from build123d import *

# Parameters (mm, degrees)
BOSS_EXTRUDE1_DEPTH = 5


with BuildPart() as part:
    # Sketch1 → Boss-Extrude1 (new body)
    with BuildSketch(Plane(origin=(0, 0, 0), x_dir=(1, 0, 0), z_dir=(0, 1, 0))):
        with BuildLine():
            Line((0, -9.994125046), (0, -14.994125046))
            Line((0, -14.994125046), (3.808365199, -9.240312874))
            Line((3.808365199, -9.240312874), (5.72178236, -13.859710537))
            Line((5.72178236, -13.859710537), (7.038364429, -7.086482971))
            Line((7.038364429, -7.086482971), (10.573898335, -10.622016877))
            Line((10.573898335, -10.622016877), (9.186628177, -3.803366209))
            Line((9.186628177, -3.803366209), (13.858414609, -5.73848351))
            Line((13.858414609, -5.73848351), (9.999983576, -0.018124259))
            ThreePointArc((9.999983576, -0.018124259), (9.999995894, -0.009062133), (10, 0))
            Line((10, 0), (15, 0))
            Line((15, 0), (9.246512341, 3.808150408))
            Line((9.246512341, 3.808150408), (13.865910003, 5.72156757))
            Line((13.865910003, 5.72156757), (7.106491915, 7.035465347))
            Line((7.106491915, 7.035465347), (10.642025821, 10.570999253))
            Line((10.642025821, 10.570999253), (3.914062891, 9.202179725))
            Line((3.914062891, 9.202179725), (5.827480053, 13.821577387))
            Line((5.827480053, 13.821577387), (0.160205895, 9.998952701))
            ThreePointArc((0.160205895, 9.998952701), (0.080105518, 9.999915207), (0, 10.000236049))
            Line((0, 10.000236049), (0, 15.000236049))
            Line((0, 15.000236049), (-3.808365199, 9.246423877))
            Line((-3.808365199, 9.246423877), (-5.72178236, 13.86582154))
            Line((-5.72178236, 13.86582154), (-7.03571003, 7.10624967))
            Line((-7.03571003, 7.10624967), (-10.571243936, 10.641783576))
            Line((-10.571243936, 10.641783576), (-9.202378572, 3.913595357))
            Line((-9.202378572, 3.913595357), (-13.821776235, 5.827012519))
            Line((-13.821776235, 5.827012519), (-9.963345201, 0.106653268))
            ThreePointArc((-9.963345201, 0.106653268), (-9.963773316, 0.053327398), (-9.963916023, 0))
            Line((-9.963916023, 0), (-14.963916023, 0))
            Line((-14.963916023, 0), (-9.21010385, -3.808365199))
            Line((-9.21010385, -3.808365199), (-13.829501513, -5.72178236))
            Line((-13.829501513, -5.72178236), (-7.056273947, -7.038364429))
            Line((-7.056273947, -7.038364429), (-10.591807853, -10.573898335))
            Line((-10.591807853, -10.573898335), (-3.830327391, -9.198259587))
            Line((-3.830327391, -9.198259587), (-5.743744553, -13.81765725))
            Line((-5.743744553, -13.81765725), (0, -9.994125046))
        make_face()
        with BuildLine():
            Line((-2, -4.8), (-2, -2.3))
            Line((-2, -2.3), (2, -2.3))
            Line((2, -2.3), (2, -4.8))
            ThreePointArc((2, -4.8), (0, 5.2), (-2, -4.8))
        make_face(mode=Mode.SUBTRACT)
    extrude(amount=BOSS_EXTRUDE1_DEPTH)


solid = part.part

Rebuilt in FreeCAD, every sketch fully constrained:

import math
import FreeCAD as App
import Part
import Sketcher
from FreeCAD import Vector
Q = App.Units.Quantity

doc = App.newDocument("Part")
params = doc.addObject("Spreadsheet::Sheet", "Params")
for row, (alias, value) in enumerate([
    ("sketch1_radius", "5.2 mm"),
    ("sketch1_width", "5 mm"),
    ("sketch1_width2", "4 mm"),
    ("sketch1_length", "5 mm"),
    ("sketch1_height", "2.5 mm"),
    ("pad1_length", "5 mm"),
], start=1):
    params.set(f"A{row}", alias)
    params.set(f"B{row}", "=" + value)
    params.setAlias(f"B{row}", alias)

body = doc.addObject("PartDesign::Body", "Body")

# Sketch on XZ plane
sketch1 = doc.addObject("Sketcher::SketchObject", "Sketch")
body.addObject(sketch1)
sketch1.AttachmentSupport = (doc.XZ_Plane, [""])
sketch1.MapMode = "FlatFace"
sketch1.addGeometry(Part.LineSegment(Vector(0, 9.994, 0), Vector(0, 14.994, 0)), False)
sketch1.addGeometry(Part.LineSegment(Vector(0, 14.994, 0), Vector(3.808, 9.24, 0)), False)
sketch1.addGeometry(Part.LineSegment(Vector(3.808, 9.24, 0), Vector(5.722, 13.86, 0)), False)
sketch1.addGeometry(Part.LineSegment(Vector(5.722, 13.86, 0), Vector(7.038, 7.086, 0)), False)
sketch1.addGeometry(Part.LineSegment(Vector(7.038, 7.086, 0), Vector(10.574, 10.622, 0)), False)
sketch1.addGeometry(Part.LineSegment(Vector(10.574, 10.622, 0), Vector(9.187, 3.803, 0)), False)
sketch1.addGeometry(Part.LineSegment(Vector(9.187, 3.803, 0), Vector(13.858, 5.738, 0)), False)
sketch1.addGeometry(Part.LineSegment(Vector(13.858, 5.738, 0), Vector(10, 0.018, 0)), False)
sketch1.addGeometry(Part.ArcOfCircle(Part.Circle(Vector(0, 0, 0), Vector(0, 0, 1), 10), math.radians(0), math.radians(0.1)), False)
sketch1.addGeometry(Part.LineSegment(Vector(10, 0, 0), Vector(15, 0, 0)), False)
sketch1.addGeometry(Part.LineSegment(Vector(15, 0, 0), Vector(9.247, -3.808, 0)), False)
sketch1.addGeometry(Part.LineSegment(Vector(9.247, -3.808, 0), Vector(13.866, -5.722, 0)), False)
sketch1.addGeometry(Part.LineSegment(Vector(13.866, -5.722, 0), Vector(7.106, -7.035, 0)), False)
sketch1.addGeometry(Part.LineSegment(Vector(7.106, -7.035, 0), Vector(10.642, -10.571, 0)), False)
sketch1.addGeometry(Part.LineSegment(Vector(10.642, -10.571, 0), Vector(3.914, -9.202, 0)), False)
sketch1.addGeometry(Part.LineSegment(Vector(3.914, -9.202, 0), Vector(5.827, -13.822, 0)), False)
sketch1.addGeometry(Part.LineSegment(Vector(5.827, -13.822, 0), Vector(0.16, -9.999, 0)), False)
sketch1.addGeometry(Part.ArcOfCircle(Part.Circle(Vector(0, 0, 0), Vector(0, 0, 1), 10), math.radians(-90), math.radians(-89.08)), False)
sketch1.addGeometry(Part.LineSegment(Vector(0, -10, 0), Vector(0, -15, 0)), False)
sketch1.addGeometry(Part.LineSegment(Vector(0, -15, 0), Vector(-3.808, -9.246, 0)), False)
sketch1.addGeometry(Part.LineSegment(Vector(-3.808, -9.246, 0), Vector(-5.722, -13.866, 0)), False)
sketch1.addGeometry(Part.LineSegment(Vector(-5.722, -13.866, 0), Vector(-7.036, -7.106, 0)), False)
sketch1.addGeometry(Part.LineSegment(Vector(-7.036, -7.106, 0), Vector(-10.571, -10.642, 0)), False)
sketch1.addGeometry(Part.LineSegment(Vector(-10.571, -10.642, 0), Vector(-9.202, -3.914, 0)), False)
sketch1.addGeometry(Part.LineSegment(Vector(-9.202, -3.914, 0), Vector(-13.822, -5.827, 0)), False)
sketch1.addGeometry(Part.LineSegment(Vector(-13.822, -5.827, 0), Vector(-9.963, -0.107, 0)), False)
sketch1.addGeometry(Part.ArcOfCircle(Part.Circle(Vector(0, 0, 0), Vector(0, 0, 1), 9.964), math.radians(-180), math.radians(-179.39)), False)
sketch1.addGeometry(Part.LineSegment(Vector(-9.964, 0, 0), Vector(-14.964, 0, 0)), False)
sketch1.addGeometry(Part.LineSegment(Vector(-14.964, 0, 0), Vector(-9.21, 3.808, 0)), False)
sketch1.addGeometry(Part.LineSegment(Vector(-9.21, 3.808, 0), Vector(-13.83, 5.722, 0)), False)
sketch1.addGeometry(Part.LineSegment(Vector(-13.83, 5.722, 0), Vector(-7.056, 7.038, 0)), False)
sketch1.addGeometry(Part.LineSegment(Vector(-7.056, 7.038, 0), Vector(-10.592, 10.574, 0)), False)
sketch1.addGeometry(Part.LineSegment(Vector(-10.592, 10.574, 0), Vector(-3.83, 9.198, 0)), False)
sketch1.addGeometry(Part.LineSegment(Vector(-3.83, 9.198, 0), Vector(-5.744, 13.818, 0)), False)
sketch1.addGeometry(Part.LineSegment(Vector(-5.744, 13.818, 0), Vector(0, 9.994, 0)), False)
sketch1.addGeometry(Part.LineSegment(Vector(-2, 2.3, 0), Vector(-2, 4.8, 0)), False)
sketch1.addGeometry(Part.ArcOfCircle(Part.Circle(Vector(0, 0, 0), Vector(0, 0, 1), 5.2), math.radians(113), math.radians(427)), False)
sketch1.addGeometry(Part.LineSegment(Vector(2, 4.8, 0), Vector(2, 2.3, 0)), False)
sketch1.addGeometry(Part.LineSegment(Vector(2, 2.3, 0), Vector(-2, 2.3, 0)), False)
sketch1.addConstraint(Sketcher.Constraint("Coincident", 0, 2, 1, 1))
sketch1.addConstraint(Sketcher.Constraint("Coincident", 1, 2, 2, 1))
sketch1.addConstraint(Sketcher.Constraint("Coincident", 2, 2, 3, 1))
sketch1.addConstraint(Sketcher.Constraint("Coincident", 3, 2, 4, 1))
sketch1.addConstraint(Sketcher.Constraint("Coincident", 4, 2, 5, 1))
sketch1.addConstraint(Sketcher.Constraint("Coincident", 5, 2, 6, 1))
sketch1.addConstraint(Sketcher.Constraint("Coincident", 6, 2, 7, 1))
sketch1.addConstraint(Sketcher.Constraint("Coincident", 7, 2, 8, 2))
sketch1.addConstraint(Sketcher.Constraint("Coincident", 8, 1, 9, 1))
sketch1.addConstraint(Sketcher.Constraint("Coincident", 9, 2, 10, 1))
sketch1.addConstraint(Sketcher.Constraint("Coincident", 10, 2, 11, 1))
sketch1.addConstraint(Sketcher.Constraint("Coincident", 11, 2, 12, 1))
sketch1.addConstraint(Sketcher.Constraint("Coincident", 12, 2, 13, 1))
sketch1.addConstraint(Sketcher.Constraint("Coincident", 13, 2, 14, 1))
sketch1.addConstraint(Sketcher.Constraint("Coincident", 14, 2, 15, 1))
sketch1.addConstraint(Sketcher.Constraint("Coincident", 15, 2, 16, 1))
sketch1.addConstraint(Sketcher.Constraint("Coincident", 16, 2, 17, 2))
sketch1.addConstraint(Sketcher.Constraint("Coincident", 17, 1, 18, 1))
sketch1.addConstraint(Sketcher.Constraint("Coincident", 18, 2, 19, 1))
sketch1.addConstraint(Sketcher.Constraint("Coincident", 19, 2, 20, 1))
sketch1.addConstraint(Sketcher.Constraint("Coincident", 20, 2, 21, 1))
sketch1.addConstraint(Sketcher.Constraint("Coincident", 21, 2, 22, 1))
sketch1.addConstraint(Sketcher.Constraint("Coincident", 22, 2, 23, 1))
sketch1.addConstraint(Sketcher.Constraint("Coincident", 23, 2, 24, 1))
sketch1.addConstraint(Sketcher.Constraint("Coincident", 24, 2, 25, 1))
sketch1.addConstraint(Sketcher.Constraint("Coincident", 25, 2, 26, 2))
sketch1.addConstraint(Sketcher.Constraint("Coincident", 26, 1, 27, 1))
sketch1.addConstraint(Sketcher.Constraint("Coincident", 27, 2, 28, 1))
sketch1.addConstraint(Sketcher.Constraint("Coincident", 28, 2, 29, 1))
sketch1.addConstraint(Sketcher.Constraint("Coincident", 29, 2, 30, 1))
sketch1.addConstraint(Sketcher.Constraint("Coincident", 30, 2, 31, 1))
sketch1.addConstraint(Sketcher.Constraint("Coincident", 31, 2, 32, 1))
sketch1.addConstraint(Sketcher.Constraint("Coincident", 32, 2, 33, 1))
sketch1.addConstraint(Sketcher.Constraint("Coincident", 33, 2, 34, 1))
sketch1.addConstraint(Sketcher.Constraint("Coincident", 34, 2, 0, 1))
sketch1.addConstraint(Sketcher.Constraint("Coincident", 35, 2, 36, 1))
sketch1.addConstraint(Sketcher.Constraint("Coincident", 36, 2, 37, 1))
sketch1.addConstraint(Sketcher.Constraint("Coincident", 37, 2, 38, 1))
sketch1.addConstraint(Sketcher.Constraint("Coincident", 38, 2, 35, 1))
sketch1.addConstraint(Sketcher.Constraint("Vertical", 0))
sketch1.addConstraint(Sketcher.Constraint("Horizontal", 9))
sketch1.addConstraint(Sketcher.Constraint("Vertical", 18))
sketch1.addConstraint(Sketcher.Constraint("Horizontal", 27))
sketch1.addConstraint(Sketcher.Constraint("Vertical", 35))
sketch1.addConstraint(Sketcher.Constraint("Vertical", 37))
sketch1.addConstraint(Sketcher.Constraint("Horizontal", 38))
sketch1.addConstraint(Sketcher.Constraint("Coincident", 17, 3, -1, 1))
sketch1.addConstraint(Sketcher.Constraint("Coincident", 36, 3, -1, 1))
sketch1.addConstraint(Sketcher.Constraint("PointOnObject", 8, 3, -1))
sketch1.addConstraint(Sketcher.Constraint("PointOnObject", 26, 3, -1))
sketch1.addConstraint(Sketcher.Constraint("PointOnObject", 0, 2, -2))
sketch1.addConstraint(Sketcher.Constraint("PointOnObject", 8, 1, -1))
sketch1.addConstraint(Sketcher.Constraint("PointOnObject", 17, 1, -2))
sketch1.addConstraint(Sketcher.Constraint("PointOnObject", 26, 1, -1))
sketch1.addConstraint(Sketcher.Constraint("Perpendicular", 1, 10))
sketch1.addConstraint(Sketcher.Constraint("Perpendicular", 2, 11))
sketch1.addConstraint(Sketcher.Constraint("Perpendicular", 3, 12))
sketch1.addConstraint(Sketcher.Constraint("Perpendicular", 4, 13))
sketch1.addConstraint(Sketcher.Constraint("Perpendicular", 5, 14))
sketch1.addConstraint(Sketcher.Constraint("Perpendicular", 6, 15))
sketch1.addConstraint(Sketcher.Constraint("Perpendicular", 7, 16))
sketch1.addConstraint(Sketcher.Constraint("Perpendicular", 10, 19))
sketch1.addConstraint(Sketcher.Constraint("Perpendicular", 11, 20))
sketch1.addConstraint(Sketcher.Constraint("Perpendicular", 12, 21))
sketch1.addConstraint(Sketcher.Constraint("Perpendicular", 13, 22))
sketch1.addConstraint(Sketcher.Constraint("Perpendicular", 14, 23))
sketch1.addConstraint(Sketcher.Constraint("Perpendicular", 15, 24))
sketch1.addConstraint(Sketcher.Constraint("Perpendicular", 16, 25))
sketch1.addConstraint(Sketcher.Constraint("Perpendicular", 19, 28))
sketch1.addConstraint(Sketcher.Constraint("Perpendicular", 20, 29))
sketch1.addConstraint(Sketcher.Constraint("Perpendicular", 21, 30))
sketch1.addConstraint(Sketcher.Constraint("Perpendicular", 22, 31))
sketch1.addConstraint(Sketcher.Constraint("Perpendicular", 23, 32))
sketch1.addConstraint(Sketcher.Constraint("Perpendicular", 24, 33))
sketch1.addConstraint(Sketcher.Constraint("Horizontal", 35, 2, 36, 2))
sketch1.addConstraint(Sketcher.Constraint("Equal", 9, 27))
sketch1.addConstraint(Sketcher.Constraint("Equal", 27, 0))
sketch1.addConstraint(Sketcher.Constraint("Equal", 0, 18))
sketch1.addConstraint(Sketcher.Constraint("Equal", 1, 3))
sketch1.addConstraint(Sketcher.Constraint("Equal", 2, 4))
sketch1.addConstraint(Sketcher.Constraint("Equal", 3, 7))
sketch1.addConstraint(Sketcher.Constraint("Equal", 4, 11))
sketch1.addConstraint(Sketcher.Constraint("Equal", 11, 13))
sketch1.addConstraint(Sketcher.Constraint("Equal", 13, 15))
sketch1.addConstraint(Sketcher.Constraint("Equal", 7, 19))
sketch1.addConstraint(Sketcher.Constraint("Equal", 15, 20))
sketch1.addConstraint(Sketcher.Constraint("Equal", 20, 22))
sketch1.addConstraint(Sketcher.Constraint("Equal", 22, 24))
sketch1.addConstraint(Sketcher.Constraint("Equal", 19, 25))
sketch1.addConstraint(Sketcher.Constraint("Equal", 25, 28))
sketch1.addConstraint(Sketcher.Constraint("Equal", 24, 29))
sketch1.addConstraint(Sketcher.Constraint("Equal", 28, 30))
sketch1.addConstraint(Sketcher.Constraint("Equal", 29, 31))
sketch1.addConstraint(Sketcher.Constraint("Equal", 30, 32))
sketch1.addConstraint(Sketcher.Constraint("Equal", 31, 33))
sketch1.addConstraint(Sketcher.Constraint("Equal", 32, 34))
sketch1.addConstraint(Sketcher.Constraint("Radius", 36, 5.2))
sketch1.addConstraint(Sketcher.Constraint("DistanceX", 9, 1, 9, 2, 5.0))
sketch1.addConstraint(Sketcher.Constraint("DistanceX", 38, 2, 38, 1, 4.0))
sketch1.addConstraint(Sketcher.Constraint("Angle", 3, Q("-79 deg")))
sketch1.addConstraint(Sketcher.Constraint("Angle", 4, Q("45 deg")))
sketch1.addConstraint(Sketcher.Constraint("Angle", 7, Q("-124 deg")))
sketch1.addConstraint(Sketcher.Constraint("Distance", 2, 5.0))
sketch1.addConstraint(Sketcher.Constraint("DistanceY", 35, 1, 35, 2, 2.5))
sketch1.addConstraint(Sketcher.Constraint("DistanceX", -1, 1, 8, 1, 10.0))
sketch1.addConstraint(Sketcher.Constraint("Angle", 1, Q("-56.5 deg")))
sketch1.addConstraint(Sketcher.Constraint("Angle", 2, Q("67.5 deg")))
sketch1.addConstraint(Sketcher.Constraint("Angle", 5, Q("-101.5 deg")))
sketch1.addConstraint(Sketcher.Constraint("Angle", 6, Q("22.5 deg")))
sketch1.addConstraint(Sketcher.Constraint("Distance", 1, 6.9))
sketch1.addConstraint(Sketcher.Constraint("Radius", 26, 9.96395))
sketch1.addConstraint(Sketcher.Constraint("DistanceY", 13, 2, -1, 1, 10.570999))
sketch1.addConstraint(Sketcher.Constraint("Radius", 8, 10.000273))
sketch1.addConstraint(Sketcher.Constraint("Radius", 17, 10.000235))
sketch1.addConstraint(Sketcher.Constraint("DistanceY", 6, 2, 3, 2, 1.347999))
sketch1.addConstraint(Sketcher.Constraint("DistanceX", 30, 2, 8, 3, 7.056))
sketch1.addConstraint(Sketcher.Constraint("Distance", 10, 6.899611))
sketch1.addConstraint(Sketcher.Constraint("Distance", 21, 6.886089))
sketch1.addConstraint(Sketcher.Constraint("DistanceY", 14, 2, -1, 1, 9.20218))
sketch1.setExpression("Constraints[96]", "Params.sketch1_radius")
sketch1.setExpression("Constraints[97]", "Params.sketch1_width")
sketch1.setExpression("Constraints[98]", "Params.sketch1_width2")
sketch1.setExpression("Constraints[102]", "Params.sketch1_length")
sketch1.setExpression("Constraints[103]", "Params.sketch1_height")
pad1 = doc.addObject("PartDesign::Pad", "Pad")
body.addObject(pad1)
pad1.Profile = sketch1
pad1.setExpression("Length", "Params.pad1_length")
pad1.Reversed = True

doc.recompute()
